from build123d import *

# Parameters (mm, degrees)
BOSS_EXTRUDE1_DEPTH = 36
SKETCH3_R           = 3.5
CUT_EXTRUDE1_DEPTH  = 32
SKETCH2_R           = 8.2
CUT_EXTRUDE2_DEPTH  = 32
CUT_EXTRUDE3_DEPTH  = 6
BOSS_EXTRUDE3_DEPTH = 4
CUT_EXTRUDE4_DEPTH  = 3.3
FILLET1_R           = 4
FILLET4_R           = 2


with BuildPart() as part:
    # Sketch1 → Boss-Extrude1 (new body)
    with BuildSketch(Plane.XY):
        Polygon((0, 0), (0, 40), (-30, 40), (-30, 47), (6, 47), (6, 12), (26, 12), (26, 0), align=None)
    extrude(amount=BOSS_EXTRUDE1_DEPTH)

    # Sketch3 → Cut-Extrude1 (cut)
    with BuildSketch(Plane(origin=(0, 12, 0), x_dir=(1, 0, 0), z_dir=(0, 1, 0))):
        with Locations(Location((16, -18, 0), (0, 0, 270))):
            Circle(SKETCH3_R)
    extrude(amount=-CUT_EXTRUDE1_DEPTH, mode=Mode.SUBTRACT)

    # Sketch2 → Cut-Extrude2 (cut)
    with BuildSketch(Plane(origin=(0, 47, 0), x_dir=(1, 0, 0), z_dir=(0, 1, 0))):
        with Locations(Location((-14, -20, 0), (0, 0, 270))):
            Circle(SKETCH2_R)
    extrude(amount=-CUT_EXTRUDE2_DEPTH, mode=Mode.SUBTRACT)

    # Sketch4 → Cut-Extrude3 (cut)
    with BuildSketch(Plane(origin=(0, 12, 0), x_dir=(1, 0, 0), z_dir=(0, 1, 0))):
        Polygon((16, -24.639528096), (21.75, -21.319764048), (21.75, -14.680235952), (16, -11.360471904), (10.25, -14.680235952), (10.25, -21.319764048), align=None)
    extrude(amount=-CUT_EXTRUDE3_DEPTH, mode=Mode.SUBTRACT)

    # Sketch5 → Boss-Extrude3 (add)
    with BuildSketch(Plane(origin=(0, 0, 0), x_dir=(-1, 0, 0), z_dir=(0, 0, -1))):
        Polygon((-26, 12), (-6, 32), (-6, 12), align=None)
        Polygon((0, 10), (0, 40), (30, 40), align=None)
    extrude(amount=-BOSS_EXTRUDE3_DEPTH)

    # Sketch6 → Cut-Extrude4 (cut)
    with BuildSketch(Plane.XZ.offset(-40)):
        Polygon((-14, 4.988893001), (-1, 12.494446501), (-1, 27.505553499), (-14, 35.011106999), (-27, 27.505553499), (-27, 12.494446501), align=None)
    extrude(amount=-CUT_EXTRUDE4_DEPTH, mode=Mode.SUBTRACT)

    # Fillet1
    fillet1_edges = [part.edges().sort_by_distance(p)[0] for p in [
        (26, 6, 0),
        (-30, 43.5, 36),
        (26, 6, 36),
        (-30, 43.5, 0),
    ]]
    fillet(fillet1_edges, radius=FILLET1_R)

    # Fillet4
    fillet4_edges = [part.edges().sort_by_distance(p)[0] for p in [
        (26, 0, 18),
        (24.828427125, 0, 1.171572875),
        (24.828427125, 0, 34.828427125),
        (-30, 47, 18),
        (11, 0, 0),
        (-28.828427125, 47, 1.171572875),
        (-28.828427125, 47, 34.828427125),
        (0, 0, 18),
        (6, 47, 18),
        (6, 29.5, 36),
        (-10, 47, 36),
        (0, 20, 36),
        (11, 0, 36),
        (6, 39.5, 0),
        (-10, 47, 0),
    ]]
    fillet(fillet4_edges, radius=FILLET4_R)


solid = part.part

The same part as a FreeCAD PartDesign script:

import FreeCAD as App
import Part
import Sketcher
from FreeCAD import Vector
Q = App.Units.Quantity


def edges_at(feature, points):
    """Names of the edges that pass closest to the given points."""
    edges = feature.Shape.Edges
    near = lambda p: min(range(len(edges)), key=lambda i: edges[i].distToShape(Part.Vertex(*p))[0])
    return sorted({f"Edge{near(p) + 1}" for p in points})

doc = App.newDocument("Part")
body = doc.addObject("PartDesign::Body", "Body")

# Sketch on XY plane
sketch1 = body.newObject("Sketcher::SketchObject", "Sketch")
sketch1.AttachmentSupport = (doc.getObject("XY_Plane"), [""])
sketch1.MapMode = "FlatFace"
sketch1.addGeometry([
    Part.LineSegment(Vector(0, 40, 0), Vector(0, 0, 0)),  # 0
    Part.LineSegment(Vector(0, 0, 0), Vector(26, 0, 0)),  # 1
    Part.LineSegment(Vector(26, 0, 0), Vector(26, 12, 0)),  # 2
    Part.LineSegment(Vector(26, 12, 0), Vector(6, 12, 0)),  # 3
    Part.LineSegment(Vector(6, 12, 0), Vector(6, 47, 0)),  # 4
    Part.LineSegment(Vector(6, 47, 0), Vector(-30, 47, 0)),  # 5
    Part.LineSegment(Vector(-30, 47, 0), Vector(-30, 40, 0)),  # 6
    Part.LineSegment(Vector(-30, 40, 0), Vector(0, 40, 0)),  # 7
], False)
sketch1.addConstraint([
    Sketcher.Constraint("Coincident", 0, 2, 1, 1),
    Sketcher.Constraint("Coincident", 1, 2, 2, 1),
    Sketcher.Constraint("Coincident", 2, 2, 3, 1),
    Sketcher.Constraint("Coincident", 3, 2, 4, 1),
    Sketcher.Constraint("Coincident", 4, 2, 5, 1),
    Sketcher.Constraint("Coincident", 5, 2, 6, 1),
    Sketcher.Constraint("Coincident", 6, 2, 7, 1),
    Sketcher.Constraint("Coincident", 7, 2, 0, 1),
    Sketcher.Constraint("Vertical", 0),
    Sketcher.Constraint("Horizontal", 1),
    Sketcher.Constraint("Vertical", 2),
    Sketcher.Constraint("Horizontal", 3),
    Sketcher.Constraint("Vertical", 4),
    Sketcher.Constraint("Horizontal", 5),
    Sketcher.Constraint("Vertical", 6),
    Sketcher.Constraint("Horizontal", 7),
    Sketcher.Constraint("Coincident", 0, 2, -1, 1),
    Sketcher.Constraint("DistanceX", 1, 1, 1, 2, Q("26 mm")),
    Sketcher.Constraint("DistanceX", 3, 2, 3, 1, Q("20 mm")),
    Sketcher.Constraint("DistanceX", 5, 2, 5, 1, Q("36 mm")),
    Sketcher.Constraint("DistanceY", 0, 2, 0, 1, Q("40 mm")),
    Sketcher.Constraint("DistanceY", 2, 1, 2, 2, Q("12 mm")),
    Sketcher.Constraint("DistanceY", 4, 1, 4, 2, Q("35 mm")),
])
pad1 = body.newObject("PartDesign::Pad", "Pad")
pad1.Profile = sketch1
pad1.Length = 36

# Sketch on XZ plane
sketch2 = body.newObject("Sketcher::SketchObject", "Sketch001")
sketch2.AttachmentSupport = (doc.getObject("XZ_Plane"), [""])
sketch2.MapMode = "FlatFace"
sketch2.AttachmentOffset = App.Placement(Vector(0, 0, -12), App.Rotation())
sketch2.addGeometry(Part.Circle(Vector(16, 18, 0), Vector(0, 0, 1), 3.5), False)
sketch2.addConstraint([
    Sketcher.Constraint("Diameter", 0, Q("7 mm")),
    Sketcher.Constraint("DistanceX", -1, 1, 0, 3, Q("16 mm")),
    Sketcher.Constraint("DistanceY", -1, 1, 0, 3, Q("18 mm")),
])
pocket1 = body.newObject("PartDesign::Pocket", "Pocket")
pocket1.Profile = sketch2
pocket1.Length = 32
pocket1.Reversed = True

# Sketch on XZ plane
sketch3 = body.newObject("Sketcher::SketchObject", "Sketch002")
sketch3.AttachmentSupport = (doc.getObject("XZ_Plane"), [""])
sketch3.MapMode = "FlatFace"
sketch3.AttachmentOffset = App.Placement(Vector(0, 0, -47), App.Rotation())
sketch3.addGeometry(Part.Circle(Vector(-14, 20, 0), Vector(0, 0, 1), 8.2), False)
sketch3.addConstraint([
    Sketcher.Constraint("Diameter", 0, Q("16.4 mm")),
    Sketcher.Constraint("DistanceX", 0, 3, -1, 1, Q("14 mm")),
    Sketcher.Constraint("DistanceY", -1, 1, 0, 3, Q("20 mm")),
])
pocket2 = body.newObject("PartDesign::Pocket", "Pocket001")
pocket2.Profile = sketch3
pocket2.Length = 32
pocket2.Reversed = True

# Sketch on XZ plane
sketch4 = body.newObject("Sketcher::SketchObject", "Sketch003")
sketch4.AttachmentSupport = (doc.getObject("XZ_Plane"), [""])
sketch4.MapMode = "FlatFace"
sketch4.AttachmentOffset = App.Placement(Vector(0, 0, -12), App.Rotation())
sketch4.addGeometry([
    Part.LineSegment(Vector(16, 24.639528, 0), Vector(21.75, 21.319764, 0)),  # 0
    Part.LineSegment(Vector(21.75, 21.319764, 0), Vector(21.75, 14.680236, 0)),  # 1
    Part.LineSegment(Vector(21.75, 14.680236, 0), Vector(16, 11.360472, 0)),  # 2
    Part.LineSegment(Vector(16, 11.360472, 0), Vector(10.25, 14.680236, 0)),  # 3
    Part.LineSegment(Vector(10.25, 14.680236, 0), Vector(10.25, 21.319764, 0)),  # 4
    Part.LineSegment(Vector(10.25, 21.319764, 0), Vector(16, 24.639528, 0)),  # 5
], False)
sketch4.addConstraint([
    Sketcher.Constraint("Coincident", 0, 2, 1, 1),
    Sketcher.Constraint("Coincident", 1, 2, 2, 1),
    Sketcher.Constraint("Coincident", 2, 2, 3, 1),
    Sketcher.Constraint("Coincident", 3, 2, 4, 1),
    Sketcher.Constraint("Coincident", 4, 2, 5, 1),
    Sketcher.Constraint("Coincident", 5, 2, 0, 1),
    Sketcher.Constraint("Vertical", 1),
    Sketcher.Constraint("Vertical", 4),
    Sketcher.Constraint("Parallel", 0, 3),
    Sketcher.Constraint("Parallel", 2, 5),
    Sketcher.Constraint("Horizontal", 1, 2, 3, 2),
    Sketcher.Constraint("Horizontal", 0, 2, 4, 2),
    Sketcher.Constraint("Vertical", 2, 2, 5, 2),
    Sketcher.Constraint("Angle", 0, Q("-30 deg")),
    Sketcher.Constraint("DistanceX", -1, 1, 2, 2, Q("16 mm")),
    Sketcher.Constraint("DistanceX", 3, 2, 1, 2, Q("11.5 mm")),
    Sketcher.Constraint("DistanceY", 1, 2, 1, 1, Q("6.639528 mm")),
    Sketcher.Constraint("DistanceY", -1, 1, 2, 2, Q("11.360472 mm")),
])
pocket3 = body.newObject("PartDesign::Pocket", "Pocket002")
pocket3.Profile = sketch4
pocket3.Length = 6
pocket3.Reversed = True

# Sketch on XY plane
sketch5 = body.newObject("Sketcher::SketchObject", "Sketch004")
sketch5.AttachmentSupport = (doc.getObject("XY_Plane"), [""])
sketch5.MapMode = "FlatFace"
sketch5.addGeometry([
    Part.LineSegment(Vector(6, 32, 0), Vector(26, 12, 0)),  # 0
    Part.LineSegment(Vector(26, 12, 0), Vector(6, 12, 0)),  # 1
    Part.LineSegment(Vector(6, 12, 0), Vector(6, 32, 0)),  # 2
    Part.LineSegment(Vector(0, 40, 0), Vector(0, 10, 0)),  # 3
    Part.LineSegment(Vector(0, 10, 0), Vector(-30, 40, 0)),  # 4
    Part.LineSegment(Vector(-30, 40, 0), Vector(0, 40, 0)),  # 5
], False)
sketch5.addConstraint([
    Sketcher.Constraint("Coincident", 0, 2, 1, 1),
    Sketcher.Constraint("Coincident", 1, 2, 2, 1),
    Sketcher.Constraint("Coincident", 2, 2, 0, 1),
    Sketcher.Constraint("Coincident", 3, 2, 4, 1),
    Sketcher.Constraint("Coincident", 4, 2, 5, 1),
    Sketcher.Constraint("Coincident", 5, 2, 3, 1),
    Sketcher.Constraint("Horizontal", 1),
    Sketcher.Constraint("Vertical", 2),
    Sketcher.Constraint("Vertical", 3),
    Sketcher.Constraint("Horizontal", 5),
    Sketcher.Constraint("PointOnObject", 3, 2, -2),
    Sketcher.Constraint("Parallel", 0, 4),
    Sketcher.Constraint("Equal", 1, 2),
    Sketcher.Constraint("DistanceX", 1, 2, 1, 1, Q("20 mm")),
    Sketcher.Constraint("DistanceX", 5, 1, 5, 2, Q("30 mm")),
    Sketcher.Constraint("DistanceX", -1, 1, 0, 2, Q("26 mm")),
    Sketcher.Constraint("DistanceY", -1, 1, 0, 2, Q("12 mm")),
    Sketcher.Constraint("DistanceY", -1, 1, 3, 2, Q("10 mm")),
])
pad2 = body.newObject("PartDesign::Pad", "Pad001")
pad2.Profile = sketch5
pad2.Length = 4

# Sketch on XZ plane
sketch6 = body.newObject("Sketcher::SketchObject", "Sketch005")
sketch6.AttachmentSupport = (doc.getObject("XZ_Plane"), [""])
sketch6.MapMode = "FlatFace"
sketch6.AttachmentOffset = App.Placement(Vector(0, 0, -40), App.Rotation())
sketch6.addGeometry([
    Part.LineSegment(Vector(-14, 4.988893, 0), Vector(-1, 12.494447, 0)),  # 0
    Part.LineSegment(Vector(-1, 12.494447, 0), Vector(-1, 27.505553, 0)),  # 1
    Part.LineSegment(Vector(-1, 27.505553, 0), Vector(-14, 35.011107, 0)),  # 2
    Part.LineSegment(Vector(-14, 35.011107, 0), Vector(-27, 27.505553, 0)),  # 3
    Part.LineSegment(Vector(-27, 27.505553, 0), Vector(-27, 12.494447, 0)),  # 4
    Part.LineSegment(Vector(-27, 12.494447, 0), Vector(-14, 4.988893, 0)),  # 5
], False)
sketch6.addConstraint([
    Sketcher.Constraint("Coincident", 0, 2, 1, 1),
    Sketcher.Constraint("Coincident", 1, 2, 2, 1),
    Sketcher.Constraint("Coincident", 2, 2, 3, 1),
    Sketcher.Constraint("Coincident", 3, 2, 4, 1),
    Sketcher.Constraint("Coincident", 4, 2, 5, 1),
    Sketcher.Constraint("Coincident", 5, 2, 0, 1),
    Sketcher.Constraint("Vertical", 1),
    Sketcher.Constraint("Vertical", 4),
    Sketcher.Constraint("Parallel", 0, 3),
    Sketcher.Constraint("Parallel", 2, 5),
    Sketcher.Constraint("Horizontal", 1, 2, 3, 2),
    Sketcher.Constraint("Horizontal", 0, 2, 4, 2),
    Sketcher.Constraint("Vertical", 2, 2, 5, 2),
    Sketcher.Constraint("Angle", 0, Q("30 deg")),
    Sketcher.Constraint("DistanceX", 0, 2, -1, 1, Q("1 mm")),
    Sketcher.Constraint("DistanceX", 2, 2, -1, 1, Q("14 mm")),
    Sketcher.Constraint("DistanceY", 1, 1, 1, 2, Q("15.011107 mm")),
    Sketcher.Constraint("DistanceY", -1, 1, 0, 2, Q("12.494447 mm")),
])
pocket4 = body.newObject("PartDesign::Pocket", "Pocket003")
pocket4.Profile = sketch6
pocket4.Length = 3.3
doc.recompute()

fillet = body.newObject("PartDesign::Fillet", "Fillet")
fillet.Base = (pocket4, edges_at(pocket4, [
    (26, 6, 0),
    (-30, 43.5, 36),
    (26, 6, 36),
    (-30, 43.5, 0),
]))
fillet.Radius = 4
doc.recompute()

fillet2 = body.newObject("PartDesign::Fillet", "Fillet001")
fillet2.Base = (fillet, edges_at(fillet, [
    (26, 0, 18),
    (24.828, 0, 1.172),
    (24.828, 0, 34.828),
    (-30, 47, 18),
    (11, 0, 0),
    (-28.828, 47, 1.172),
    (-28.828, 47, 34.828),
    (0, 0, 18),
    (6, 47, 18),
    (6, 29.5, 36),
    (-10, 47, 36),
    (0, 20, 36),
    (11, 0, 36),
    (6, 39.5, 0),
    (-10, 47, 0),
]))
fillet2.Radius = 2

doc.recompute()
